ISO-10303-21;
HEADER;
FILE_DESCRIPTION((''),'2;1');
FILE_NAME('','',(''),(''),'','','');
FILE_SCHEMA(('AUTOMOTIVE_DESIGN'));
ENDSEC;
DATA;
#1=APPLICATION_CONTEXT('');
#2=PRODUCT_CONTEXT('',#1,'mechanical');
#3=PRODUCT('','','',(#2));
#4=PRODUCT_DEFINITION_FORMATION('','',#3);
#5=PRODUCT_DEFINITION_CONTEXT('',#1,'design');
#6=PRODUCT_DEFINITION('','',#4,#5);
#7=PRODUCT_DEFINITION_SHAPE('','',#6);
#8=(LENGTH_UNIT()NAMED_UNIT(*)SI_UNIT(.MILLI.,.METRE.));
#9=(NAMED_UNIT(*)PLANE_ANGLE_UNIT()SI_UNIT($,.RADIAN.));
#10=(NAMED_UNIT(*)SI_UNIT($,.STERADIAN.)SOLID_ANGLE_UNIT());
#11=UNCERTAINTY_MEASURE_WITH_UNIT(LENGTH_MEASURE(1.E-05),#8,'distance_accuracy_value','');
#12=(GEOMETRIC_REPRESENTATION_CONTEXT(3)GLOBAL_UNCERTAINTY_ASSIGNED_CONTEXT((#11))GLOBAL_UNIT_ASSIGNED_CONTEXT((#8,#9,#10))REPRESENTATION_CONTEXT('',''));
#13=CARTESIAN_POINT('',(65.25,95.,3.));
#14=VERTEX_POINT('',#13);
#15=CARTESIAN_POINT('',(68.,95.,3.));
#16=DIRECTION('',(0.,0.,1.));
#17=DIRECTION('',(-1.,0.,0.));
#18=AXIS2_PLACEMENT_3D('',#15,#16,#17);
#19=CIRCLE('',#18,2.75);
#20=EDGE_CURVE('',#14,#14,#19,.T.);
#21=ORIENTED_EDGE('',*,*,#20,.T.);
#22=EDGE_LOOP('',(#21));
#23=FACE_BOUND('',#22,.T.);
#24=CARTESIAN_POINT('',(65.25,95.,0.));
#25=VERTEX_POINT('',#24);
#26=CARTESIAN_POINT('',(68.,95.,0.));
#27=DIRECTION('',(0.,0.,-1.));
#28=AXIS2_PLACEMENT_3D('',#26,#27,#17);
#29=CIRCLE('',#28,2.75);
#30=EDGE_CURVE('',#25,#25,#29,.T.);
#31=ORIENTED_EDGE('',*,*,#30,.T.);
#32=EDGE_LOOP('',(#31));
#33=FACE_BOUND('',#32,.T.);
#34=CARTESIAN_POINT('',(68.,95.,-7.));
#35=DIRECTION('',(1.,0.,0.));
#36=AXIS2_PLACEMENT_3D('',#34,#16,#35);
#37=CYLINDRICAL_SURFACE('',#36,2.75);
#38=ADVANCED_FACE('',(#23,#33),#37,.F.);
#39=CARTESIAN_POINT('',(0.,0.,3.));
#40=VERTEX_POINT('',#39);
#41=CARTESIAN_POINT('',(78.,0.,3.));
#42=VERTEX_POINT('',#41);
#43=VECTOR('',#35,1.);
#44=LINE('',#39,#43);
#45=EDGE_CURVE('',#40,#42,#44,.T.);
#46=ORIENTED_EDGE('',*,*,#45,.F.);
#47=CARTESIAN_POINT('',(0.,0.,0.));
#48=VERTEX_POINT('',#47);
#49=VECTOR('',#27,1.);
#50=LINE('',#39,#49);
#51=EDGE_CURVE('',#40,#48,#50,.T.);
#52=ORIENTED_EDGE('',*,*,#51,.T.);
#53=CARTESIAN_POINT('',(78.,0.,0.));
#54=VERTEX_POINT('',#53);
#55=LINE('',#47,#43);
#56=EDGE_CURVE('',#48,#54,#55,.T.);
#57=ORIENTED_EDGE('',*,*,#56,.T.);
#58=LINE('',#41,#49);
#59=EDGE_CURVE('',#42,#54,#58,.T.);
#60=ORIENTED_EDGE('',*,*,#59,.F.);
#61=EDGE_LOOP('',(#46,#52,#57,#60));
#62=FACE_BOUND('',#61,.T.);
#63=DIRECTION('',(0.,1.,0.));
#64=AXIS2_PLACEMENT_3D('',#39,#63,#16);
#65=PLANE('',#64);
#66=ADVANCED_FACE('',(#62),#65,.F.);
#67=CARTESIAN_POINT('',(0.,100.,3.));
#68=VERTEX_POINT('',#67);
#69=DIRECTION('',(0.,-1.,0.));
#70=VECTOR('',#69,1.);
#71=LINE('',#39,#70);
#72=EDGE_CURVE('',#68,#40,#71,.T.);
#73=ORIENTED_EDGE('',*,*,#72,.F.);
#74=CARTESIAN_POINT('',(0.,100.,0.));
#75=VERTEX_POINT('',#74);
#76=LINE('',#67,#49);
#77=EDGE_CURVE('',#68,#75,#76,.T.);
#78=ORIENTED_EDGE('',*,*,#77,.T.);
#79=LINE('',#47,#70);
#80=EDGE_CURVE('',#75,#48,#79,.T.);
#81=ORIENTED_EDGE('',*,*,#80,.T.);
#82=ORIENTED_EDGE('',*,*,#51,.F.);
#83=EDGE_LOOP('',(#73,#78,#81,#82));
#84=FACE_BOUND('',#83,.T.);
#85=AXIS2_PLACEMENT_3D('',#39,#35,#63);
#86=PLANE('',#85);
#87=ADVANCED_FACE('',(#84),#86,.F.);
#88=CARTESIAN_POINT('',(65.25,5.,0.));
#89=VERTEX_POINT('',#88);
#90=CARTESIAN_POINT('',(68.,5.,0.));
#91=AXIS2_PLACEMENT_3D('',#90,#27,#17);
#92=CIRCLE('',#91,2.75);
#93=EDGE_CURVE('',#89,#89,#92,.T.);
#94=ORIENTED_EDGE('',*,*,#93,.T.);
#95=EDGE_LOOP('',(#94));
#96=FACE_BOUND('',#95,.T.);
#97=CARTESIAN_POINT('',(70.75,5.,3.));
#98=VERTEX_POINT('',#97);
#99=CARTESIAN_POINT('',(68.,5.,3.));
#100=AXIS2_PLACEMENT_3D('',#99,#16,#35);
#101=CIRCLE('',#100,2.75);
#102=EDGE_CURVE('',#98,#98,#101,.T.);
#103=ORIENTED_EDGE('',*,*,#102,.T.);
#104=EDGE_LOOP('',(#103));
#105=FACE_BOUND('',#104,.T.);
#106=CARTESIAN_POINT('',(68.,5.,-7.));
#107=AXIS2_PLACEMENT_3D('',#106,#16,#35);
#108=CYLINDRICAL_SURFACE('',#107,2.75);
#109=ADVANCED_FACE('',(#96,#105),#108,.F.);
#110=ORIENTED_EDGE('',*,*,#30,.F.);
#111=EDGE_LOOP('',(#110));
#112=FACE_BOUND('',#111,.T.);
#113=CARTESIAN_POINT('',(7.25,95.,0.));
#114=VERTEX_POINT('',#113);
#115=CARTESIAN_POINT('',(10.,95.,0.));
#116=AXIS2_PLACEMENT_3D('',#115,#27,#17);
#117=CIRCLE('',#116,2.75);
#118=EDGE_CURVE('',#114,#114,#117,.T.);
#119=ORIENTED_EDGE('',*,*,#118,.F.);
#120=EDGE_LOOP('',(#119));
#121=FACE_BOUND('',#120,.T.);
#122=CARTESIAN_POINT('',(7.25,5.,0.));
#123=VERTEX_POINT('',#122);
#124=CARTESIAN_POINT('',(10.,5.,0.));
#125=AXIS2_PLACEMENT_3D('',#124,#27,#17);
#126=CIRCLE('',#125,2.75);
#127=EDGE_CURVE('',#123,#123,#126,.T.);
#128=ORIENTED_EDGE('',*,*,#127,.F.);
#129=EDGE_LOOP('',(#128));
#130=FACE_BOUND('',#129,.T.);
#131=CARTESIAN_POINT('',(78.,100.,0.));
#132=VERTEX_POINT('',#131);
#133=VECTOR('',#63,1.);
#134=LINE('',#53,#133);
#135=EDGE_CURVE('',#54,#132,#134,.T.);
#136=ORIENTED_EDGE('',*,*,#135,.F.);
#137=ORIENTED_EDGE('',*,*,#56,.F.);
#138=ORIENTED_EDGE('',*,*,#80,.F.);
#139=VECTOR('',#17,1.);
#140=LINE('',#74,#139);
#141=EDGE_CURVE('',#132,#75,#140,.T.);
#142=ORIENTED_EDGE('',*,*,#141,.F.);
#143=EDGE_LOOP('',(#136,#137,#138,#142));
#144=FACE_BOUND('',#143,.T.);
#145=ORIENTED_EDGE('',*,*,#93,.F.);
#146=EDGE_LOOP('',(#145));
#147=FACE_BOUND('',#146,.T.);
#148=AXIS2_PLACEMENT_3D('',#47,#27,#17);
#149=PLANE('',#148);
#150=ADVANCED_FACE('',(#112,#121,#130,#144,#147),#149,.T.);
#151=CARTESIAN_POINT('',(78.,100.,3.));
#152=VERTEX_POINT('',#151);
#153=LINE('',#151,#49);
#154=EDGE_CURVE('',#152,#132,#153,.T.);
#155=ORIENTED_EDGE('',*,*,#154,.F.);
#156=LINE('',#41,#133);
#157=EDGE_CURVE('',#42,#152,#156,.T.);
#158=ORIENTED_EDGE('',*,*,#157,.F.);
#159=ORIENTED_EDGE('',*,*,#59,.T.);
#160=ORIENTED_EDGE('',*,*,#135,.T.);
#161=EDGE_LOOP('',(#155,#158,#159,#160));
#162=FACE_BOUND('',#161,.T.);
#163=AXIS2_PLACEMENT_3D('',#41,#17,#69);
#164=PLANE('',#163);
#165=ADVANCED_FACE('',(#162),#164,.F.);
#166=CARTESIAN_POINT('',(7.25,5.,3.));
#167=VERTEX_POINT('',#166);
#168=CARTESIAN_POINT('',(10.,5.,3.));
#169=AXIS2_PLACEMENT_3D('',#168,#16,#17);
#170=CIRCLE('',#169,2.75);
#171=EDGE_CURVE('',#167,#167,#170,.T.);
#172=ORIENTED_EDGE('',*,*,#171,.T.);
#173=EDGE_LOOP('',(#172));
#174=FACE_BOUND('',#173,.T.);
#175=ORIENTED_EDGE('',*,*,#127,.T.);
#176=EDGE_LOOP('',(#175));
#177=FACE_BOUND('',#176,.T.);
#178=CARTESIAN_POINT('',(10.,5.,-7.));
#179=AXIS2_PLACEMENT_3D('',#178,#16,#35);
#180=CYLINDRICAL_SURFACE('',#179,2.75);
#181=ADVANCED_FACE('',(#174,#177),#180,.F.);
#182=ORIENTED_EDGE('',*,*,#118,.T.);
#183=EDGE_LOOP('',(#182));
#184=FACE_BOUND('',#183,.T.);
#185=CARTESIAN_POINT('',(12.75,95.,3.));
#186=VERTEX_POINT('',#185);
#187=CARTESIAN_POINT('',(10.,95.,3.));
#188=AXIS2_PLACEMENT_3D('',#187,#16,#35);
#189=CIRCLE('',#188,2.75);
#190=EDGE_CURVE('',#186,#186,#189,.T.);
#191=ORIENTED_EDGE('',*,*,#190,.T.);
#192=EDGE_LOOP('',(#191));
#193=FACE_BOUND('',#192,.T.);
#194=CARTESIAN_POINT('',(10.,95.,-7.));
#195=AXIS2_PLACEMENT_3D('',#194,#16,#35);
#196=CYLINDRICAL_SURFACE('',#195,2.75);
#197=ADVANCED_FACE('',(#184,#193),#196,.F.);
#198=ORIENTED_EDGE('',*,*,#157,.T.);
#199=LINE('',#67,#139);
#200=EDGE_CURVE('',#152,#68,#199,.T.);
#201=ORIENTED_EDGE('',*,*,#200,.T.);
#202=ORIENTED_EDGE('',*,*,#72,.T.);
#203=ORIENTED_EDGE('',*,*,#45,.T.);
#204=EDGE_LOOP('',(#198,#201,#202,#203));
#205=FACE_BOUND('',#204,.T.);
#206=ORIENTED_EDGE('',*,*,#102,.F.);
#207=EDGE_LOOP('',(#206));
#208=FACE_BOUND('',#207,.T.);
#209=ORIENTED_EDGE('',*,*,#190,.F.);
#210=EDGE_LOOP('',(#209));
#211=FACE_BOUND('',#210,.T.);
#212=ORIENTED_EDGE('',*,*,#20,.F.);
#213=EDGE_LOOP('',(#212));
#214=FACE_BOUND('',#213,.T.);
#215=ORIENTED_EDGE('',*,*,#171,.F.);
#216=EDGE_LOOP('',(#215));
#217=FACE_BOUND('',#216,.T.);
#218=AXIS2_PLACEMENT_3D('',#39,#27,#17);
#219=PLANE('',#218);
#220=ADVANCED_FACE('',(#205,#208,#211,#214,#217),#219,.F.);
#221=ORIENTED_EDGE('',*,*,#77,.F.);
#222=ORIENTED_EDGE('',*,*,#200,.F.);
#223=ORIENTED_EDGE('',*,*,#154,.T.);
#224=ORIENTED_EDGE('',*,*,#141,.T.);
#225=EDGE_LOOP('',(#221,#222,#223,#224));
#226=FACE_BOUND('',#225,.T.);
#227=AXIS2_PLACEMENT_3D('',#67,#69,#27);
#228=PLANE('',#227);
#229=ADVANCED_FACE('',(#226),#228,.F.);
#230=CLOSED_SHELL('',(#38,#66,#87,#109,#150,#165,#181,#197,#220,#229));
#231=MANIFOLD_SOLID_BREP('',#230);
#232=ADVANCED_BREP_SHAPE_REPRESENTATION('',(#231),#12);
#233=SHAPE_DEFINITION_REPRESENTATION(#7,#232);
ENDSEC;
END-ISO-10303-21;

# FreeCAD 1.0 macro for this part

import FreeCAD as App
import Part
import Sketcher

V = App.Vector
Q = App.Units.Quantity


def add_polygon(sketch, points):
    """Adds a closed chain of lines whose ends are joined by coincident constraints."""
    first, n = sketch.GeometryCount, len(points)
    for a, b in zip(points, points[1:] + points[:1]):
        sketch.addGeometry(Part.LineSegment(App.Vector(*a, 0), App.Vector(*b, 0)), False)
    for i in range(n):
        sketch.addConstraint(Sketcher.Constraint("Coincident", first + i, 2, first + (i + 1) % n, 1))

doc = App.newDocument("Part")
body = doc.addObject("PartDesign::Body", "Body")

# Sketch on XY plane
sketch1 = body.newObject("Sketcher::SketchObject", "Sketch")
sketch1.AttachmentSupport = (doc.getObject("XY_Plane"), [""])
sketch1.MapMode = "FlatFace"
add_polygon(sketch1, [(0, 100), (0, 0), (78, 0), (78, 100)])  # lines 0-3
sketch1.addConstraint([
    Sketcher.Constraint("Vertical", 0),
    Sketcher.Constraint("Horizontal", 1),
    Sketcher.Constraint("Vertical", 2),
    Sketcher.Constraint("Horizontal", 3),
    Sketcher.Constraint("Coincident", 0, 2, -1, 1),
    Sketcher.Constraint("DistanceX", 1, 1, 1, 2, Q("78 mm")),
    Sketcher.Constraint("DistanceY", 0, 2, 0, 1, Q("100 mm")),
])
pad1 = body.newObject("PartDesign::Pad", "Pad")
pad1.Profile = sketch1
pad1.Length = 3

# Sketch on XY plane
sketch2 = body.newObject("Sketcher::SketchObject", "Sketch001")
sketch2.AttachmentSupport = (doc.getObject("XY_Plane"), [""])
sketch2.MapMode = "FlatFace"
sketch2.AttachmentOffset = App.Placement(V(0, 0, 3), App.Rotation())
sketch2.addGeometry([
    Part.Circle(V(10, 95, 0), V(0, 0, 1), 2.8),
    Part.Circle(V(10, 5, 0), V(0, 0, 1), 2.8),
    Part.Circle(V(68, 5, 0), V(0, 0, 1), 2.8),
    Part.Circle(V(68, 95, 0), V(0, 0, 1), 2.8),
], False)
sketch2.addConstraint([
    Sketcher.Constraint("Equal", 0, 1),
    Sketcher.Constraint("Equal", 1, 2),
    Sketcher.Constraint("Equal", 2, 3),
    Sketcher.Constraint("Horizontal", 1, 3, 2, 3),
    Sketcher.Constraint("Horizontal", 0, 3, 3, 3),
    Sketcher.Constraint("Vertical", 0, 3, 1, 3),
    Sketcher.Constraint("Vertical", 2, 3, 3, 3),
    Sketcher.Constraint("Diameter", 0, Q("5.5 mm")),
    Sketcher.Constraint("DistanceX", -1, 1, 0, 3, Q("10 mm")),
    Sketcher.Constraint("DistanceY", -1, 1, 0, 3, Q("95 mm")),
    Sketcher.Constraint("DistanceY", -1, 1, 1, 3, Q("5 mm")),
    Sketcher.Constraint("DistanceX", -1, 1, 2, 3, Q("68 mm")),
])
pocket1 = body.newObject("PartDesign::Pocket", "Pocket")
pocket1.Profile = sketch2
pocket1.Length = 10

doc.recompute()
